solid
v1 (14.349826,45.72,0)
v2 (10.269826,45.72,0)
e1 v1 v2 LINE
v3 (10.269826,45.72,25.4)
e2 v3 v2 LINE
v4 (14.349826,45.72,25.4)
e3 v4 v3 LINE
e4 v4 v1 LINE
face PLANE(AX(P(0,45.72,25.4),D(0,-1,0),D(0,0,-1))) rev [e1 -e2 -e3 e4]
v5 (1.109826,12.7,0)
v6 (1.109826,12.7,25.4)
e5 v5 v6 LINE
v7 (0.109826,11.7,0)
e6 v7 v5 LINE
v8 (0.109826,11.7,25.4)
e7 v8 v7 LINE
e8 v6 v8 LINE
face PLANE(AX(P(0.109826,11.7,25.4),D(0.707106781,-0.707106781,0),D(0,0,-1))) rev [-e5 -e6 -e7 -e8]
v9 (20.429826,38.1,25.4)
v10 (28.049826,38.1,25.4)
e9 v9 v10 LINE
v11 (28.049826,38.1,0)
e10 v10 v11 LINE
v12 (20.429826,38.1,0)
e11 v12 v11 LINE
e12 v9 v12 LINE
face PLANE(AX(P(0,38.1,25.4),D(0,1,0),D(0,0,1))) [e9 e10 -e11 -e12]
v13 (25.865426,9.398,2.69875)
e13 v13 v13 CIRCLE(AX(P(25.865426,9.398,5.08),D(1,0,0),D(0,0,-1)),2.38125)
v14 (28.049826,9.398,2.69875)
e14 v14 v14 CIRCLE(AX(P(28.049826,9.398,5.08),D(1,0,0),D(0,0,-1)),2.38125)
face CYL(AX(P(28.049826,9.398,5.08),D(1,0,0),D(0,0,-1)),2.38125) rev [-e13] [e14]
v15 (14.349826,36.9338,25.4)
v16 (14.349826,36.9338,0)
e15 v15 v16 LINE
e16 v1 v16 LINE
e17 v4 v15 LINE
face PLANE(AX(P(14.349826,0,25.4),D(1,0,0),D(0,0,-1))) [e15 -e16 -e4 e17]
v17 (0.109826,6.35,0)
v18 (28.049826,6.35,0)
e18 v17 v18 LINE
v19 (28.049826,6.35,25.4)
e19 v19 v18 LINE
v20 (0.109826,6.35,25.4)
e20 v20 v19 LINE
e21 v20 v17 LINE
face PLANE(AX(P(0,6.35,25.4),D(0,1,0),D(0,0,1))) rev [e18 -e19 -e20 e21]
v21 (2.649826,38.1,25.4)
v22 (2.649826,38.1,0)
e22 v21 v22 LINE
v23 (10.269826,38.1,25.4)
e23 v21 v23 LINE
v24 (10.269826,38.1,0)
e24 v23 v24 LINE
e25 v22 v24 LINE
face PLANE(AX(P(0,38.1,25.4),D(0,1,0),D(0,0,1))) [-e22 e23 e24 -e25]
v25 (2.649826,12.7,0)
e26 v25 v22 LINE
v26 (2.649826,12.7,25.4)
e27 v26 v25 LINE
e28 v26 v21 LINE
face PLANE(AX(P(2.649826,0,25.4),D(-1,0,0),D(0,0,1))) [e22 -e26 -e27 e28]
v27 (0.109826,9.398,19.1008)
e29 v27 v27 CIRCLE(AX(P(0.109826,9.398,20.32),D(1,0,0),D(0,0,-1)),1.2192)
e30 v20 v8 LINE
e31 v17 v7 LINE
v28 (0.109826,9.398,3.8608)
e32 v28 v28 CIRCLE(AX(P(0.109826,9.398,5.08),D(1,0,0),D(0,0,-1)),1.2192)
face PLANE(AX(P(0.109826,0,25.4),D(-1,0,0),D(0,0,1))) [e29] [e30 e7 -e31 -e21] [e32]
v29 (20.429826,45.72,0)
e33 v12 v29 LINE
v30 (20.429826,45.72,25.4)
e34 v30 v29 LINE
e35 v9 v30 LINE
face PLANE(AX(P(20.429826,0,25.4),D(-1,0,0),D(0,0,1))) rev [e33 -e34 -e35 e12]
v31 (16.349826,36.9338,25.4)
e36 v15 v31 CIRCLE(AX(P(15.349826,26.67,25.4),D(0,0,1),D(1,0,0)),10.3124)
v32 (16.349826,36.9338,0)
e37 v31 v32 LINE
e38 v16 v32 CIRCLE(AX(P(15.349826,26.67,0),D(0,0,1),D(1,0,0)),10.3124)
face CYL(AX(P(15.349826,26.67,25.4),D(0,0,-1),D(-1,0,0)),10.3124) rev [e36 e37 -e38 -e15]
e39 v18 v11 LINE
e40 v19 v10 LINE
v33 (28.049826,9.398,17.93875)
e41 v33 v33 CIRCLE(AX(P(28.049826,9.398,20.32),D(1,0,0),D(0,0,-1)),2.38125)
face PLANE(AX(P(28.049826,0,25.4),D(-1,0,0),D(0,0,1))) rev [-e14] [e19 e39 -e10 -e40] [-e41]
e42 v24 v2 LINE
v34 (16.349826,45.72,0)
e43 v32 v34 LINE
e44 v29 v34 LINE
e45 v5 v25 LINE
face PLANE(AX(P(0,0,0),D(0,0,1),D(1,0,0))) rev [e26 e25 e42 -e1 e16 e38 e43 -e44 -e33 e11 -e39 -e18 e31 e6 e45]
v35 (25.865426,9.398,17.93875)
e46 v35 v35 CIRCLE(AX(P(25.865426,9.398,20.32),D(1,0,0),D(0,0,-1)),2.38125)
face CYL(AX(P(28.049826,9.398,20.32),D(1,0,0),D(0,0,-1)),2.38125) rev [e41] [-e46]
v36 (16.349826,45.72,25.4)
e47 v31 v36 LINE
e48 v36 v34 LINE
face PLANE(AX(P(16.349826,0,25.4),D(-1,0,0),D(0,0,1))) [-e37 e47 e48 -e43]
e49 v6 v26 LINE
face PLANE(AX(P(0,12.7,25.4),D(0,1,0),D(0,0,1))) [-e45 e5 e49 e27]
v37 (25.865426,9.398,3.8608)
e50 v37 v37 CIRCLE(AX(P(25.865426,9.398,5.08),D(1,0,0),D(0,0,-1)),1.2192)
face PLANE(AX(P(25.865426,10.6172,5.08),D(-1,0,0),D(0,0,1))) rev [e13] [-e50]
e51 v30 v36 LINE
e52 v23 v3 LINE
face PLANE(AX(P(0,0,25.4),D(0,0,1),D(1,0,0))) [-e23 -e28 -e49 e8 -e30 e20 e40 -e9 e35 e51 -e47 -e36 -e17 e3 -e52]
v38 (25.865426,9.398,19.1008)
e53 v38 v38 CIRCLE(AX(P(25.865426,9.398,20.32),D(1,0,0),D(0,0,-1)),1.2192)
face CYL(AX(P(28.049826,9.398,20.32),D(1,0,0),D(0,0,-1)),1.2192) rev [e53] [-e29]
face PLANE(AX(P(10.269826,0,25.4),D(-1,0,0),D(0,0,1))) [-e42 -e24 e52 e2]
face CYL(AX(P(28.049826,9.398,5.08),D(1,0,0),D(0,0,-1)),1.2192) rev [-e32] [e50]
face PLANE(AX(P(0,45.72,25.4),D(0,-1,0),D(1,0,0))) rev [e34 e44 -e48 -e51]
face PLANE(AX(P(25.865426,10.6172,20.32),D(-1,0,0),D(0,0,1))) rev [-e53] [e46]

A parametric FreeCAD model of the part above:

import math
import FreeCAD as App
import Part
import Sketcher
from FreeCAD import Vector
Q = App.Units.Quantity


def edges_at(feature, points):
    """Names of the edges that pass closest to the given points."""
    edges = feature.Shape.Edges
    near = lambda p: min(range(len(edges)), key=lambda i: edges[i].distToShape(Part.Vertex(*p))[0])
    return sorted({f"Edge{near(p) + 1}" for p in points})

doc = App.newDocument("Part")
body = doc.addObject("PartDesign::Body", "Body")

sketch1 = body.newObject("Sketcher::SketchObject", "Sketch")
sketch1.AttachmentSupport = (doc.getObject("XY_Plane"), [""])
sketch1.MapMode = "FlatFace"
sketch1.addGeometry([
    Part.LineSegment(Vector(0.1, 12.7, 0), Vector(0.1, 6.3, 0)),
    Part.LineSegment(Vector(0.1, 6.3, 0), Vector(28, 6.3, 0)),
    Part.LineSegment(Vector(28, 6.3, 0), Vector(28, 38.1, 0)),
    Part.LineSegment(Vector(28, 38.1, 0), Vector(20.4, 38.1, 0)),
    Part.LineSegment(Vector(20.4, 38.1, 0), Vector(20.4, 45.7, 0)),
    Part.LineSegment(Vector(20.4, 45.7, 0), Vector(16.3, 45.7, 0)),
    Part.LineSegment(Vector(16.3, 45.7, 0), Vector(16.3, 36.9, 0)),
    Part.ArcOfCircle(Part.Circle(Vector(15.3, 26.7, 0), Vector(0, 0, 1), 10.3), math.radians(96), math.radians(444)),
    Part.LineSegment(Vector(14.3, 36.9, 0), Vector(14.3, 45.7, 0)),
    Part.LineSegment(Vector(14.3, 45.7, 0), Vector(10.3, 45.7, 0)),
    Part.LineSegment(Vector(10.3, 45.7, 0), Vector(10.3, 38.1, 0)),
    Part.LineSegment(Vector(10.3, 38.1, 0), Vector(2.6, 38.1, 0)),
    Part.LineSegment(Vector(2.6, 38.1, 0), Vector(2.6, 12.7, 0)),
    Part.LineSegment(Vector(2.6, 12.7, 0), Vector(0.1, 12.7, 0)),
], False)
sketch1.addConstraint([
    Sketcher.Constraint("Coincident", 0, 2, 1, 1),
    Sketcher.Constraint("Coincident", 1, 2, 2, 1),
    Sketcher.Constraint("Coincident", 2, 2, 3, 1),
    Sketcher.Constraint("Coincident", 3, 2, 4, 1),
    Sketcher.Constraint("Coincident", 4, 2, 5, 1),
    Sketcher.Constraint("Coincident", 5, 2, 6, 1),
    Sketcher.Constraint("Coincident", 6, 2, 7, 2),
    Sketcher.Constraint("Coincident", 7, 1, 8, 1),
    Sketcher.Constraint("Coincident", 8, 2, 9, 1),
    Sketcher.Constraint("Coincident", 9, 2, 10, 1),
    Sketcher.Constraint("Coincident", 10, 2, 11, 1),
    Sketcher.Constraint("Coincident", 11, 2, 12, 1),
    Sketcher.Constraint("Coincident", 12, 2, 13, 1),
    Sketcher.Constraint("Coincident", 13, 2, 0, 1),
    Sketcher.Constraint("Vertical", 0),
    Sketcher.Constraint("Horizontal", 1),
    Sketcher.Constraint("Vertical", 2),
    Sketcher.Constraint("Horizontal", 3),
    Sketcher.Constraint("Vertical", 4),
    Sketcher.Constraint("Horizontal", 5),
    Sketcher.Constraint("Vertical", 6),
    Sketcher.Constraint("Vertical", 8),
    Sketcher.Constraint("Horizontal", 9),
    Sketcher.Constraint("Vertical", 10),
    Sketcher.Constraint("Horizontal", 11),
    Sketcher.Constraint("Vertical", 12),
    Sketcher.Constraint("Horizontal", 13),
    Sketcher.Constraint("Horizontal", 6, 2, 7, 1),
    Sketcher.Constraint("Horizontal", 5, 2, 8, 2),
    Sketcher.Constraint("Horizontal", 3, 2, 10, 2),
    Sketcher.Constraint("Equal", 5, 9),
    Sketcher.Constraint("Equal", 3, 11),
    Sketcher.Constraint("Equal", 11, 4),
    Sketcher.Constraint("DistanceY", 12, 2, 12, 1, Q("1 in")),
    Sketcher.Constraint("DistanceX", 1, 1, 1, 2, Q("1.1 in")),
    Sketcher.Constraint("DistanceX", 3, 2, 3, 1, Q("0.3 in")),
    Sketcher.Constraint("DistanceX", 13, 2, 13, 1, Q("0.1 in")),
    Sketcher.Constraint("Radius", 7, Q("0.406 in")),
    Sketcher.Constraint("DistanceY", 0, 2, 0, 1, Q("0.25 in")),
    Sketcher.Constraint("DistanceY", -1, 1, 2, 2, Q("1.5 in")),
    Sketcher.Constraint("DistanceY", 0, 2, 7, 3, Q("0.8 in")),
    Sketcher.Constraint("DistanceX", 5, 2, 5, 1, Q("4.08 mm")),
    Sketcher.Constraint("DistanceX", -1, 1, 7, 3, Q("15.349826 mm")),
])
pad1 = body.newObject("PartDesign::Pad", "Pad")
pad1.Profile = sketch1
pad1.Length = Q("1 in")
doc.recompute()

chamfer = body.newObject("PartDesign::Chamfer", "Chamfer")
chamfer.Base = (pad1, edges_at(pad1, [(0.11, 12.7, 12.7)]))
chamfer.Size = 1

sketch2 = body.newObject("Sketcher::SketchObject", "Sketch001")
sketch2.AttachmentSupport = (doc.getObject("YZ_Plane"), [""])
sketch2.MapMode = "FlatFace"
sketch2.AttachmentOffset = App.Placement(Vector(0, 0, 28.049826), App.Rotation())
sketch2.addGeometry([
    Part.Circle(Vector(9.4, 20.3, 0), Vector(0, 0, 1), 1.2),
    Part.Circle(Vector(9.4, 5.1, 0), Vector(0, 0, 1), 1.2),
], False)
sketch2.addConstraint([
    Sketcher.Constraint("Equal", 0, 1),
    Sketcher.Constraint("Vertical", 0, 3, 1, 3),
    Sketcher.Constraint("Diameter", 0, Q("0.096 in")),
    Sketcher.Constraint("DistanceY", -1, 1, 0, 3, Q("0.8 in")),
    Sketcher.Constraint("DistanceY", -1, 1, 1, 3, Q("0.2 in")),
    Sketcher.Constraint("DistanceX", -1, 1, 0, 3, Q("0.37 in")),
])
doc.recompute()
hole = body.newObject("PartDesign::Hole", "Hole")
hole.Profile = sketch2
hole.ThreadType = "None"
hole.Diameter = Q("0.096 in")
hole.DepthType = "ThroughAll"
hole.HoleCutType = "Counterbore"
hole.HoleCutDiameter = Q("0.1875 in")
hole.HoleCutDepth = Q("0.086 in")

doc.recompute()
